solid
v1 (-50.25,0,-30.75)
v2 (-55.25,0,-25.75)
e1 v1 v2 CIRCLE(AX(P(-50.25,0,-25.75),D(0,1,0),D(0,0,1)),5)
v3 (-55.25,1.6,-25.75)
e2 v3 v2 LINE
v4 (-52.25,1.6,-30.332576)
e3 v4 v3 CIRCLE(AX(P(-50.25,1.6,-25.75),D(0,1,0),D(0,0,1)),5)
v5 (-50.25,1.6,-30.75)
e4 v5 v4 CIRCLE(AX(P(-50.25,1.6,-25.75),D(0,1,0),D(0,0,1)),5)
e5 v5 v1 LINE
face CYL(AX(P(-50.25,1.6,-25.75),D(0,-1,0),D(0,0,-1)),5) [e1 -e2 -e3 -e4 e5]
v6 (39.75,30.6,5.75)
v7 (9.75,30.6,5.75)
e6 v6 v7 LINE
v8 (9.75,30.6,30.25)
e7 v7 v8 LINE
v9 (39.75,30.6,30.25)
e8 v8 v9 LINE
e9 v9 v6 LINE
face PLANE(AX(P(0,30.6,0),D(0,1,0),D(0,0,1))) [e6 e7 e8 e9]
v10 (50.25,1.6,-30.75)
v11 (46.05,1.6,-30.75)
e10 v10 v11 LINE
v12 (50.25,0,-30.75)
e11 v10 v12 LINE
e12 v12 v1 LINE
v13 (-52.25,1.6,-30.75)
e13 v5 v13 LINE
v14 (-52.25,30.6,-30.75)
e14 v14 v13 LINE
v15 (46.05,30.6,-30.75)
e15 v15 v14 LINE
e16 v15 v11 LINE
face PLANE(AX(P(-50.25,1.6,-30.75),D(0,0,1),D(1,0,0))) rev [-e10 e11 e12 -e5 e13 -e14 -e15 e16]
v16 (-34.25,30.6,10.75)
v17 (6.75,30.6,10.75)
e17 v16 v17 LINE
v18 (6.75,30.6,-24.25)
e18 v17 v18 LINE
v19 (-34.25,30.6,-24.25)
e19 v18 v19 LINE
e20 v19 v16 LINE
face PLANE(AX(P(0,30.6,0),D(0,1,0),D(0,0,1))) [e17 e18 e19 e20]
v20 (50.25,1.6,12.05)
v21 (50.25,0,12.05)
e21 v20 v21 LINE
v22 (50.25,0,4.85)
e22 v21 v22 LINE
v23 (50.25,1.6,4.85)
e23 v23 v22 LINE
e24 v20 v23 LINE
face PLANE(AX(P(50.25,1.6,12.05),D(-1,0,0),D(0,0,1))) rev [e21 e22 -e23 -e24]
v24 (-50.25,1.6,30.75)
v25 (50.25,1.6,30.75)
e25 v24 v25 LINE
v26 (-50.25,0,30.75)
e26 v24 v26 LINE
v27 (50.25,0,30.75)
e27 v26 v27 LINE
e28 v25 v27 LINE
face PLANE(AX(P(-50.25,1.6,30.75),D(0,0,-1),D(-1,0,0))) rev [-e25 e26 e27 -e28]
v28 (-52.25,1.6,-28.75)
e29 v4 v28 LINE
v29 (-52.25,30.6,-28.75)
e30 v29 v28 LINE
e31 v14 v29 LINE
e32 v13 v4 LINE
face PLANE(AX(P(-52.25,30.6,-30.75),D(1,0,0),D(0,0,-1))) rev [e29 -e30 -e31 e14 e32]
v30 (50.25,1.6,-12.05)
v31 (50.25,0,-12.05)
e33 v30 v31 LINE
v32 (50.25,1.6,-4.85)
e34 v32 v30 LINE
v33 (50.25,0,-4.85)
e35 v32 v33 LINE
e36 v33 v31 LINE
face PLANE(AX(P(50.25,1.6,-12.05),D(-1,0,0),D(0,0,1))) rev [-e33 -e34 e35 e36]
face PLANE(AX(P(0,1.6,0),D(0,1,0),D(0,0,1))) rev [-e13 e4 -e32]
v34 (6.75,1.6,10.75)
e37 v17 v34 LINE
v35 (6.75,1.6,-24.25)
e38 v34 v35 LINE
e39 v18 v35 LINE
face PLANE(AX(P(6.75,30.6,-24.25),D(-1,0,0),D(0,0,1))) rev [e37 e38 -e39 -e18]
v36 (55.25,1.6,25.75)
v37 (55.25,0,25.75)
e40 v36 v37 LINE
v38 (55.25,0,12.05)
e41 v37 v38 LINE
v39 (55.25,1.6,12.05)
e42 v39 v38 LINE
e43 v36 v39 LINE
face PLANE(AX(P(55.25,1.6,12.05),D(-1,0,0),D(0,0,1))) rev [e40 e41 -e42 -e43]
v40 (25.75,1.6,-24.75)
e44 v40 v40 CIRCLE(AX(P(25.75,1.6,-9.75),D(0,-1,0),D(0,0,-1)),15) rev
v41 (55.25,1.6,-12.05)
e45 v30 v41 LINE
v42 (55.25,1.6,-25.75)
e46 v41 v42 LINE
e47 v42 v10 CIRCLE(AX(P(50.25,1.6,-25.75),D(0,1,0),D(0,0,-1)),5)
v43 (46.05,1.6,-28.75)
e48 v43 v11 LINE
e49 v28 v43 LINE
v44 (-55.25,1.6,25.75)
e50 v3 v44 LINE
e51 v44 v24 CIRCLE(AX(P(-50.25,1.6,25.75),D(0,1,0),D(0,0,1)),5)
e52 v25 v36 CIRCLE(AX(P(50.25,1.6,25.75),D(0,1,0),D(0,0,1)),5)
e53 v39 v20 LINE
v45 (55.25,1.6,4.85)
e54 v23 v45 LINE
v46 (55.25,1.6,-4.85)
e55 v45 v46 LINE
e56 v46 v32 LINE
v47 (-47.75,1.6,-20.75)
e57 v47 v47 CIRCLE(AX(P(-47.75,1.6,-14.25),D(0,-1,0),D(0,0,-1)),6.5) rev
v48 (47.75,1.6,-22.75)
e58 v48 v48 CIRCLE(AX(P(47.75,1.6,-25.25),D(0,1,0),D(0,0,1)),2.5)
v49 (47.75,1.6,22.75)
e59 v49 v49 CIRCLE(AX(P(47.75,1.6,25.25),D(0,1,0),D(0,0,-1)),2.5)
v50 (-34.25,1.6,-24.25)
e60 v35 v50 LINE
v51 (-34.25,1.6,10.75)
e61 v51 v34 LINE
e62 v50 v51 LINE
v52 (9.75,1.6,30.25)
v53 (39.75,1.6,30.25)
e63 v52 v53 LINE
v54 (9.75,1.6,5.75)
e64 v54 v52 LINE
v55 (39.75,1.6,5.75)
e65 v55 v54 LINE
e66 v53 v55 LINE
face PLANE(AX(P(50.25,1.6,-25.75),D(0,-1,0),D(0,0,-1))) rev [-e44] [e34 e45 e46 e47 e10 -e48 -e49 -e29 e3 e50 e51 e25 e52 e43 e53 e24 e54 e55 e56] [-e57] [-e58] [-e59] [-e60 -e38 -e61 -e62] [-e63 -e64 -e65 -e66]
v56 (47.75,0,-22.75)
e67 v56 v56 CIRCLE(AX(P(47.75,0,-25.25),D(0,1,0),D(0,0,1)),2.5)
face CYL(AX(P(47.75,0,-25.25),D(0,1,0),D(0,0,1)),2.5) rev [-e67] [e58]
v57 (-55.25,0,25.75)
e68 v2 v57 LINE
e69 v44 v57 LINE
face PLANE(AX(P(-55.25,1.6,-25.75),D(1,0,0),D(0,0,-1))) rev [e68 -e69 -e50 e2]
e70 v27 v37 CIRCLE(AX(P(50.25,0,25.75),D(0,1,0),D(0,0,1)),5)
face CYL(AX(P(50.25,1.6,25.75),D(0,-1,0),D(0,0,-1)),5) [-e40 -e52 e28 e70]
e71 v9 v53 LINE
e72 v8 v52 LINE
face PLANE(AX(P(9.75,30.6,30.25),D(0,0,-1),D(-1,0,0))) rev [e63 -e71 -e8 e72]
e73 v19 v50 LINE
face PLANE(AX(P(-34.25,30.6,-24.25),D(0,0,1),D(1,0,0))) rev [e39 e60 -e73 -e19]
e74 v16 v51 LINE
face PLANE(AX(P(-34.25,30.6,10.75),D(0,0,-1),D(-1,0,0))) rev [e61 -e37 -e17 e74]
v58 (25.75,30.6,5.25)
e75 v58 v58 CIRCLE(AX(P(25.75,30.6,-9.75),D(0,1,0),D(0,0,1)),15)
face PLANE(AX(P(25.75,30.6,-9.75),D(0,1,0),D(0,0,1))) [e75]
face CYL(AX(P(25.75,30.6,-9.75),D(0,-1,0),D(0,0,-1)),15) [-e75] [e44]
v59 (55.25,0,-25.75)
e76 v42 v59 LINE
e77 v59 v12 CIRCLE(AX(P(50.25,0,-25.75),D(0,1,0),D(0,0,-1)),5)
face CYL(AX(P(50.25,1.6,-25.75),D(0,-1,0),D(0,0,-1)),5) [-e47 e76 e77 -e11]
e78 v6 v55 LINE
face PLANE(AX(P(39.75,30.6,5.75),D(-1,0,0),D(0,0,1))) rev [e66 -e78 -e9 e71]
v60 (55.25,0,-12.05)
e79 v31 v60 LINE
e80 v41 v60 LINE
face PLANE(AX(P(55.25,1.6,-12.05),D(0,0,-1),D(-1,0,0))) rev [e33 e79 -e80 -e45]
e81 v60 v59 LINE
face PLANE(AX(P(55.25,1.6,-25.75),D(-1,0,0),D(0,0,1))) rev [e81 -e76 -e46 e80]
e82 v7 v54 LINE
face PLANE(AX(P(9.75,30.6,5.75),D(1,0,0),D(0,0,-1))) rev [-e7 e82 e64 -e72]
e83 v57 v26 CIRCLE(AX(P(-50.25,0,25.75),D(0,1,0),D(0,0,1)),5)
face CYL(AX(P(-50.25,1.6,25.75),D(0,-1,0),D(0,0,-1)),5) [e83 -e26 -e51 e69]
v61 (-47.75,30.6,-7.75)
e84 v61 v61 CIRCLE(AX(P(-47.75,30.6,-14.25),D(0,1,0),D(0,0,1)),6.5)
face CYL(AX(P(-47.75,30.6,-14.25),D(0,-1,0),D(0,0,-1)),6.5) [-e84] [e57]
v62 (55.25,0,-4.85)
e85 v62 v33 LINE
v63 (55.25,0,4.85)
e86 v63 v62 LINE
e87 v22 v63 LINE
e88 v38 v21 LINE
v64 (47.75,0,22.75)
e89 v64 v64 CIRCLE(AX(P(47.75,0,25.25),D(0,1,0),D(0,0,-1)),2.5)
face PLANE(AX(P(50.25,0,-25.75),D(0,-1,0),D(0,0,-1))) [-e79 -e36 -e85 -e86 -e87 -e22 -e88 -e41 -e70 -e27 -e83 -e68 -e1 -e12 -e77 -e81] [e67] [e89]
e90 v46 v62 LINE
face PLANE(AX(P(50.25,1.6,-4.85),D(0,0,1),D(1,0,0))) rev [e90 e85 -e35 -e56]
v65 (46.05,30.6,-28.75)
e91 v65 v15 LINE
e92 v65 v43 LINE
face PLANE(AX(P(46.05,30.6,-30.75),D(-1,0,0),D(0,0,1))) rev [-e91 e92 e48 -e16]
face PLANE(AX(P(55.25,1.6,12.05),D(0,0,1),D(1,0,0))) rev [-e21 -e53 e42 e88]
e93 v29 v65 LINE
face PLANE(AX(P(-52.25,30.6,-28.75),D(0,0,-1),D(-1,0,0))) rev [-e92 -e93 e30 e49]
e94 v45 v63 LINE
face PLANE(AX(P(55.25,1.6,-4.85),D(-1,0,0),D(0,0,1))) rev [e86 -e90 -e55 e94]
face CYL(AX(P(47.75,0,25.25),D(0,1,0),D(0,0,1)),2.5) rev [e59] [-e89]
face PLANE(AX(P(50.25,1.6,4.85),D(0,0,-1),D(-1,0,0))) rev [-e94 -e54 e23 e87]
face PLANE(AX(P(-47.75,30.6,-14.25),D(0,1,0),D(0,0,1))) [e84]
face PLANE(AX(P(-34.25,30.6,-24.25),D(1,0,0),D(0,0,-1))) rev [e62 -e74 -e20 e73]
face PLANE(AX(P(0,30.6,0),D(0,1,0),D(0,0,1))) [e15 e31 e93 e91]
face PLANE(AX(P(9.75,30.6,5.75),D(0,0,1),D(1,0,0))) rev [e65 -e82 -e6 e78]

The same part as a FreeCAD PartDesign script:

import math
import FreeCAD as App
import Part
import Sketcher
Q = App.Units.Quantity

doc = App.newDocument("Part")
body = doc.addObject("PartDesign::Body", "Body")

# Sketch on XZ plane
sketch1 = doc.addObject("Sketcher::SketchObject", "Sketch")
body.addObject(sketch1)
sketch1.AttachmentSupport = (doc.XZ_Plane, [""])
sketch1.MapMode = "FlatFace"
sketch1.addGeometry([
    Part.LineSegment(App.Vector(50, -12, 0), App.Vector(55, -12, 0)),  # 0
    Part.LineSegment(App.Vector(55, -12, 0), App.Vector(55, -26, 0)),  # 1
    Part.ArcOfCircle(Part.Circle(App.Vector(50, -26, 0), App.Vector(0, 0, 1), 5), math.radians(-90), math.radians(0)),  # 2
    Part.LineSegment(App.Vector(50, -31, 0), App.Vector(-50, -31, 0)),  # 3
    Part.ArcOfCircle(Part.Circle(App.Vector(-50, -26, 0), App.Vector(0, 0, 1), 5), math.radians(180), math.radians(270)),  # 4
    Part.LineSegment(App.Vector(-55, -26, 0), App.Vector(-55, 26, 0)),  # 5
    Part.ArcOfCircle(Part.Circle(App.Vector(-50, 26, 0), App.Vector(0, 0, 1), 5), math.radians(90), math.radians(180)),  # 6
    Part.LineSegment(App.Vector(-50, 31, 0), App.Vector(50, 31, 0)),  # 7
    Part.ArcOfCircle(Part.Circle(App.Vector(50, 26, 0), App.Vector(0, 0, 1), 5), math.radians(0), math.radians(90)),  # 8
    Part.LineSegment(App.Vector(55, 26, 0), App.Vector(55, 12, 0)),  # 9
    Part.LineSegment(App.Vector(55, 12, 0), App.Vector(50, 12, 0)),  # 10
    Part.LineSegment(App.Vector(50, 12, 0), App.Vector(50, 5, 0)),  # 11
    Part.LineSegment(App.Vector(50, 5, 0), App.Vector(55, 5, 0)),  # 12
    Part.LineSegment(App.Vector(55, 5, 0), App.Vector(55, -5, 0)),  # 13
    Part.LineSegment(App.Vector(55, -5, 0), App.Vector(50, -5, 0)),  # 14
    Part.LineSegment(App.Vector(50, -5, 0), App.Vector(50, -12, 0)),  # 15
], False)
sketch1.addConstraint([
    Sketcher.Constraint("Coincident", 0, 2, 1, 1),
    Sketcher.Constraint("Tangent", 1, 2, 2, 2),
    Sketcher.Constraint("Tangent", 2, 1, 3, 1),
    Sketcher.Constraint("Tangent", 3, 2, 4, 2),
    Sketcher.Constraint("Tangent", 4, 1, 5, 1),
    Sketcher.Constraint("Tangent", 5, 2, 6, 2),
    Sketcher.Constraint("Tangent", 6, 1, 7, 1),
    Sketcher.Constraint("Tangent", 7, 2, 8, 2),
    Sketcher.Constraint("Tangent", 8, 1, 9, 1),
    Sketcher.Constraint("Coincident", 9, 2, 10, 1),
    Sketcher.Constraint("Coincident", 10, 2, 11, 1),
    Sketcher.Constraint("Coincident", 11, 2, 12, 1),
    Sketcher.Constraint("Coincident", 12, 2, 13, 1),
    Sketcher.Constraint("Coincident", 13, 2, 14, 1),
    Sketcher.Constraint("Coincident", 14, 2, 15, 1),
    Sketcher.Constraint("Coincident", 15, 2, 0, 1),
    Sketcher.Constraint("Horizontal", 0),
    Sketcher.Constraint("Vertical", 1),
    Sketcher.Constraint("Horizontal", 3),
    Sketcher.Constraint("Vertical", 5),
    Sketcher.Constraint("Horizontal", 7),
    Sketcher.Constraint("Vertical", 9),
    Sketcher.Constraint("Horizontal", 10),
    Sketcher.Constraint("Vertical", 11),
    Sketcher.Constraint("Horizontal", 12),
    Sketcher.Constraint("Vertical", 13),
    Sketcher.Constraint("Horizontal", 14),
    Sketcher.Constraint("Vertical", 15),
    Sketcher.Constraint("Equal", 2, 4),
    Sketcher.Constraint("Equal", 4, 6),
    Sketcher.Constraint("Equal", 6, 8),
    Sketcher.Constraint("Symmetric", 2, 3, 6, 3, -1, 1),
    Sketcher.Constraint("Symmetric", 0, 2, 9, 2, -1),
    Sketcher.Constraint("Symmetric", 11, 2, 14, 2, -1),
    Sketcher.Constraint("Vertical", 7, 2, 10, 2),
    Sketcher.Constraint("Vertical", 9, 2, 12, 2),
    Sketcher.Constraint("Radius", 2, Q("5 mm")),
    Sketcher.Constraint("DistanceX", 3, 2, 3, 1, Q("100.5 mm")),
    Sketcher.Constraint("DistanceY", 1, 2, 1, 1, Q("13.7 mm")),
    Sketcher.Constraint("DistanceY", 5, 1, 5, 2, Q("51.5 mm")),
    Sketcher.Constraint("DistanceY", 11, 2, 11, 1, Q("7.2 mm")),
])
pad1 = doc.addObject("PartDesign::Pad", "Pad")
body.addObject(pad1)
pad1.Profile = sketch1
pad1.Length = 1.6
pad1.Reversed = True

# Sketch on XZ plane
sketch2 = doc.addObject("Sketcher::SketchObject", "Sketch001")
body.addObject(sketch2)
sketch2.AttachmentSupport = (doc.XZ_Plane, [""])
sketch2.MapMode = "FlatFace"
sketch2.AttachmentOffset = App.Placement(App.Vector(0, 0, -1.6), App.Rotation())
sketch2.addGeometry([
    Part.Circle(App.Vector(47.8, -25.2, 0), App.Vector(0, 0, 1), 2.5),
    Part.Circle(App.Vector(47.8, 25.2, 0), App.Vector(0, 0, 1), 2.5),
], False)
sketch2.addConstraint([
    Sketcher.Constraint("Equal", 0, 1),
    Sketcher.Constraint("Symmetric", 0, 3, 1, 3, -1),
    Sketcher.Constraint("Diameter", 0, Q("5 mm")),
    Sketcher.Constraint("DistanceY", 0, 3, 1, 3, Q("50.5 mm")),
    Sketcher.Constraint("DistanceX", -1, 1, 0, 3, Q("47.75 mm")),
])
pocket1 = doc.addObject("PartDesign::Pocket", "Pocket")
body.addObject(pocket1)
pocket1.Profile = sketch2
pocket1.Length = 1.6
pocket1.Reversed = True

# Sketch on XZ plane
sketch3 = doc.addObject("Sketcher::SketchObject", "Sketch002")
body.addObject(sketch3)
sketch3.AttachmentSupport = (doc.XZ_Plane, [""])
sketch3.MapMode = "FlatFace"
sketch3.AttachmentOffset = App.Placement(App.Vector(0, 0, -1.6), App.Rotation())
sketch3.addGeometry([
    Part.Circle(App.Vector(25.8, -9.8, 0), App.Vector(0, 0, 1), 15),  # 0
    Part.Circle(App.Vector(-47.8, -14.2, 0), App.Vector(0, 0, 1), 6.5),  # 1
    Part.LineSegment(App.Vector(-52.2, -30.8, 0), App.Vector(-52.2, -28.8, 0)),  # 2
    Part.LineSegment(App.Vector(-52.2, -28.8, 0), App.Vector(46, -28.8, 0)),  # 3
    Part.LineSegment(App.Vector(46, -28.8, 0), App.Vector(46, -30.8, 0)),  # 4
    Part.LineSegment(App.Vector(46, -30.8, 0), App.Vector(-52.2, -30.8, 0)),  # 5
    Part.LineSegment(App.Vector(9.8, 5.8, 0), App.Vector(9.8, 30.2, 0)),  # 6
    Part.LineSegment(App.Vector(9.8, 30.2, 0), App.Vector(39.8, 30.2, 0)),  # 7
    Part.LineSegment(App.Vector(39.8, 30.2, 0), App.Vector(39.8, 5.8, 0)),  # 8
    Part.LineSegment(App.Vector(39.8, 5.8, 0), App.Vector(9.8, 5.8, 0)),  # 9
    Part.LineSegment(App.Vector(-34.2, -24.2, 0), App.Vector(-34.2, 10.8, 0)),  # 10
    Part.LineSegment(App.Vector(-34.2, 10.8, 0), App.Vector(6.8, 10.8, 0)),  # 11
    Part.LineSegment(App.Vector(6.8, 10.8, 0), App.Vector(6.8, -24.2, 0)),  # 12
    Part.LineSegment(App.Vector(6.8, -24.2, 0), App.Vector(-34.2, -24.2, 0)),  # 13
], False)
sketch3.addConstraint([
    Sketcher.Constraint("Coincident", 2, 2, 3, 1),
    Sketcher.Constraint("Coincident", 3, 2, 4, 1),
    Sketcher.Constraint("Coincident", 4, 2, 5, 1),
    Sketcher.Constraint("Coincident", 5, 2, 2, 1),
    Sketcher.Constraint("Coincident", 6, 2, 7, 1),
    Sketcher.Constraint("Coincident", 7, 2, 8, 1),
    Sketcher.Constraint("Coincident", 8, 2, 9, 1),
    Sketcher.Constraint("Coincident", 9, 2, 6, 1),
    Sketcher.Constraint("Coincident", 10, 2, 11, 1),
    Sketcher.Constraint("Coincident", 11, 2, 12, 1),
    Sketcher.Constraint("Coincident", 12, 2, 13, 1),
    Sketcher.Constraint("Coincident", 13, 2, 10, 1),
    Sketcher.Constraint("Vertical", 2),
    Sketcher.Constraint("Horizontal", 3),
    Sketcher.Constraint("Vertical", 4),
    Sketcher.Constraint("Horizontal", 5),
    Sketcher.Constraint("Vertical", 6),
    Sketcher.Constraint("Horizontal", 7),
    Sketcher.Constraint("Vertical", 8),
    Sketcher.Constraint("Horizontal", 9),
    Sketcher.Constraint("Vertical", 10),
    Sketcher.Constraint("Horizontal", 11),
    Sketcher.Constraint("Vertical", 12),
    Sketcher.Constraint("Horizontal", 13),
    Sketcher.Constraint("Diameter", 0, Q("30 mm")),
    Sketcher.Constraint("Diameter", 1, Q("13 mm")),
    Sketcher.Constraint("DistanceX", 7, 1, 7, 2, Q("30 mm")),
    Sketcher.Constraint("DistanceX", 11, 1, 11, 2, Q("41 mm")),
    Sketcher.Constraint("DistanceY", 2, 1, 2, 2, Q("2 mm")),
    Sketcher.Constraint("DistanceY", 10, 1, 10, 2, Q("35 mm")),
    Sketcher.Constraint("DistanceX", 3, 1, 3, 2, Q("98.3 mm")),
    Sketcher.Constraint("DistanceY", 6, 1, 6, 2, Q("24.5 mm")),
    Sketcher.Constraint("DistanceX", 2, 2, 0, 3, Q("78 mm")),
    Sketcher.Constraint("DistanceY", 2, 2, 0, 3, Q("19 mm")),
    Sketcher.Constraint("DistanceX", 6, 2, 0, 3, Q("16 mm")),
    Sketcher.Constraint("DistanceY", 0, 3, 6, 2, Q("40 mm")),
    Sketcher.Constraint("DistanceY", 1, 3, 10, 2, Q("25 mm")),
    Sketcher.Constraint("DistanceX", 2, 2, 10, 2, Q("18 mm")),
    Sketcher.Constraint("DistanceY", 9, 2, 10, 2, Q("5 mm")),
    Sketcher.Constraint("DistanceX", 1, 3, 0, 3, Q("73.5 mm")),
    Sketcher.Constraint("DistanceX", -1, 1, 0, 3, Q("25.75 mm")),
    Sketcher.Constraint("DistanceY", 0, 3, -1, 1, Q("9.75 mm")),
])
pad2 = doc.addObject("PartDesign::Pad", "Pad001")
body.addObject(pad2)
pad2.Profile = sketch3
pad2.Length = 29
pad2.Reversed = True

doc.recompute()
